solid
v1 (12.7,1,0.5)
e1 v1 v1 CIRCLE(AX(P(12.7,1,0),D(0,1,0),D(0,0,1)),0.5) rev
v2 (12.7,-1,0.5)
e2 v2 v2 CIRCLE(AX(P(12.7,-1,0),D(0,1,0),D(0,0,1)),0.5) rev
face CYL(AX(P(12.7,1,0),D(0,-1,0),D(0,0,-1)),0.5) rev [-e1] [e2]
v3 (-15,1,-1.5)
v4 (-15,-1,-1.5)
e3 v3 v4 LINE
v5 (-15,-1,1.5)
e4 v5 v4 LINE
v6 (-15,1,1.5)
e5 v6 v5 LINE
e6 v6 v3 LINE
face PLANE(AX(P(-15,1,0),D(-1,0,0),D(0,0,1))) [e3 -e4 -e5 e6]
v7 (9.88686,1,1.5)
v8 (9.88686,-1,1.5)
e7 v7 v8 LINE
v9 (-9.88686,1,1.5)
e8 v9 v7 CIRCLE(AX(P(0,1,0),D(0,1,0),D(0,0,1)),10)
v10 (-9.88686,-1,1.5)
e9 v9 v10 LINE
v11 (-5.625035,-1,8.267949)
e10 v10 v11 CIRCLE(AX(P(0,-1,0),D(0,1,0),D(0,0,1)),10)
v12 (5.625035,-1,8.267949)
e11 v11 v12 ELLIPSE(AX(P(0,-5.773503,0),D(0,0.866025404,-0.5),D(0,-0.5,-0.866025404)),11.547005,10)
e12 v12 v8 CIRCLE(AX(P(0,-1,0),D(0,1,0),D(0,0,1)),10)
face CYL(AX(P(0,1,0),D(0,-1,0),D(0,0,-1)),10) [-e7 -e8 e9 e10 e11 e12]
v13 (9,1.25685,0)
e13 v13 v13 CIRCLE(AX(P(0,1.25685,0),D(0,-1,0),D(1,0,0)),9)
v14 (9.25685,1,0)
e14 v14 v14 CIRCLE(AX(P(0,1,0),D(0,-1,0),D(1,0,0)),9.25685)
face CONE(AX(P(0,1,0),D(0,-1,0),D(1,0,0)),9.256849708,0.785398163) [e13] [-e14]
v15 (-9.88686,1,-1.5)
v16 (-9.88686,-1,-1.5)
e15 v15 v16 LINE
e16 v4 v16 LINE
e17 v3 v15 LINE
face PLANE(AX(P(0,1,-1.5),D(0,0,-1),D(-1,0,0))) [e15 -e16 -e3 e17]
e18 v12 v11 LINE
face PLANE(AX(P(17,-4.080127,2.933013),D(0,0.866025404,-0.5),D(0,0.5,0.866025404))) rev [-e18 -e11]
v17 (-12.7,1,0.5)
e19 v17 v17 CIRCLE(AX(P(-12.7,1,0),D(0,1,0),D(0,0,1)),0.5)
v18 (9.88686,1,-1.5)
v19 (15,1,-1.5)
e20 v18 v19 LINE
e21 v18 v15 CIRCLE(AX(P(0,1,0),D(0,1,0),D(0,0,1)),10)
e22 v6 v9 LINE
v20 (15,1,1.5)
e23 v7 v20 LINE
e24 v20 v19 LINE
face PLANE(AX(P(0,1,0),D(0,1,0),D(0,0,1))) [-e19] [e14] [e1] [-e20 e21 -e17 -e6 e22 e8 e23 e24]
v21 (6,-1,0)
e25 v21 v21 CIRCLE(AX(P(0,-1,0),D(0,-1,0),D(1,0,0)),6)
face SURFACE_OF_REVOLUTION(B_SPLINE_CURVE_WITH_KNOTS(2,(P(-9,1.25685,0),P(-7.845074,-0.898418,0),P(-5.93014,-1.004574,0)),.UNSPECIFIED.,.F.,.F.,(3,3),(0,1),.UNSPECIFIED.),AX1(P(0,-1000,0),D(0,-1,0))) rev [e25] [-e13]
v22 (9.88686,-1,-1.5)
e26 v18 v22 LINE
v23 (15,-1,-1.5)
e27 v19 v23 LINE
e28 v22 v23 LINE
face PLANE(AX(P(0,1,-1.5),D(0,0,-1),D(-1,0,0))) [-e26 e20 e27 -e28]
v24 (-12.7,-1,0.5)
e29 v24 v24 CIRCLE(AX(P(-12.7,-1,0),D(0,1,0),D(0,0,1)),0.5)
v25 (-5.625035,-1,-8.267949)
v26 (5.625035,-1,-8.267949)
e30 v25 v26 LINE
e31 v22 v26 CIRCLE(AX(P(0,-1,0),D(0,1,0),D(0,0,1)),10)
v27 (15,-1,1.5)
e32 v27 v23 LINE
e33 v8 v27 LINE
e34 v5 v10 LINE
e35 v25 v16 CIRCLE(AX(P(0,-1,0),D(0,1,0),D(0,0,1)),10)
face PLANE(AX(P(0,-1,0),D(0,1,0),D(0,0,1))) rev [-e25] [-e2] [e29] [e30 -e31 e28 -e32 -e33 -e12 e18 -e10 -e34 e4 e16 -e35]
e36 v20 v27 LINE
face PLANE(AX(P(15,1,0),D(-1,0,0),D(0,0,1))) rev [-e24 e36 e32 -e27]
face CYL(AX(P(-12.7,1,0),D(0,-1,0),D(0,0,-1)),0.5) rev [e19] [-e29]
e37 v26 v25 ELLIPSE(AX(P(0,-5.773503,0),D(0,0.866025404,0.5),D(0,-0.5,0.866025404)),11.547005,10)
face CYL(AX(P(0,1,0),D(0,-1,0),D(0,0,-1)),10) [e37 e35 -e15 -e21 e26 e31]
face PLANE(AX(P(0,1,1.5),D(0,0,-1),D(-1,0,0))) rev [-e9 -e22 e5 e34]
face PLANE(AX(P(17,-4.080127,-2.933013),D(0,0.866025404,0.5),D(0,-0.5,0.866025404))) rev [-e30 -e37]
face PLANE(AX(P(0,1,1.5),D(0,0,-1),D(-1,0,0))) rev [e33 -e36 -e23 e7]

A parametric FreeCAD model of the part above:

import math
import FreeCAD as App
import Part
import Sketcher

V = App.Vector
Q = App.Units.Quantity


def add_polygon(sketch, points):
    """Adds a closed chain of lines whose ends are joined by coincident constraints."""
    first, n = sketch.GeometryCount, len(points)
    for a, b in zip(points, points[1:] + points[:1]):
        sketch.addGeometry(Part.LineSegment(App.Vector(*a, 0), App.Vector(*b, 0)), False)
    for i in range(n):
        sketch.addConstraint(Sketcher.Constraint("Coincident", first + i, 2, first + (i + 1) % n, 1))

doc = App.newDocument("Part")
body = doc.addObject("PartDesign::Body", "Body")

sketch1 = body.newObject("Sketcher::SketchObject", "Sketch")
sketch1.AttachmentSupport = (doc.getObject("XZ_Plane"), [""])
sketch1.MapMode = "FlatFace"
sketch1.addGeometry([
    Part.LineSegment(V(-15, 1.5, 0), V(-9.9, 1.5, 0)),
    Part.ArcOfCircle(Part.Circle(V(0, 0, 0), V(0, 0, 1), 10), math.radians(90), math.radians(171)),
    Part.ArcOfCircle(Part.Circle(V(0, 0, 0), V(0, 0, 1), 10), math.radians(9), math.radians(90)),
    Part.LineSegment(V(9.9, 1.5, 0), V(15, 1.5, 0)),
    Part.LineSegment(V(15, 1.5, 0), V(15, -1.5, 0)),
    Part.LineSegment(V(15, -1.5, 0), V(9.9, -1.5, 0)),
    Part.ArcOfCircle(Part.Circle(V(0, 0, 0), V(0, 0, 1), 10), math.radians(-90), math.radians(-9)),
    Part.ArcOfCircle(Part.Circle(V(0, 0, 0), V(0, 0, 1), 10), math.radians(-171), math.radians(-90)),
    Part.LineSegment(V(-9.9, -1.5, 0), V(-15, -1.5, 0)),
    Part.LineSegment(V(-15, -1.5, 0), V(-15, 1.5, 0)),
    Part.Circle(V(-12.7, 0, 0), V(0, 0, 1), 0.5),
    Part.ArcOfCircle(Part.Circle(V(0, 0, 0), V(0, 0, 1), 9), math.radians(170.41), math.radians(189.59)),
    Part.ArcOfCircle(Part.Circle(V(0, 0, 0), V(0, 0, 1), 9), math.radians(-170), math.radians(-90)),
    Part.ArcOfCircle(Part.Circle(V(0, 0, 0), V(0, 0, 1), 9), math.radians(-90), math.radians(-10)),
    Part.ArcOfCircle(Part.Circle(V(0, 0, 0), V(0, 0, 1), 9), math.radians(-9.59), math.radians(0)),
    Part.ArcOfCircle(Part.Circle(V(0, 0, 0), V(0, 0, 1), 9), math.radians(0), math.radians(9.59)),
    Part.ArcOfCircle(Part.Circle(V(0, 0, 0), V(0, 0, 1), 9), math.radians(10), math.radians(90)),
    Part.ArcOfCircle(Part.Circle(V(0, 0, 0), V(0, 0, 1), 9), math.radians(90), math.radians(170)),
    Part.Circle(V(12.7, 0, 0), V(0, 0, 1), 0.5),
], False)
sketch1.addConstraint([
    Sketcher.Constraint("Coincident", 0, 2, 1, 2),
    Sketcher.Constraint("Tangent", 1, 1, 2, 2),
    Sketcher.Constraint("Coincident", 2, 1, 3, 1),
    Sketcher.Constraint("Coincident", 3, 2, 4, 1),
    Sketcher.Constraint("Coincident", 4, 2, 5, 1),
    Sketcher.Constraint("Coincident", 5, 2, 6, 2),
    Sketcher.Constraint("Tangent", 6, 1, 7, 2),
    Sketcher.Constraint("Coincident", 7, 1, 8, 1),
    Sketcher.Constraint("Coincident", 8, 2, 9, 1),
    Sketcher.Constraint("Coincident", 9, 2, 0, 1),
    Sketcher.Constraint("Tangent", 11, 2, 12, 1),
    Sketcher.Constraint("Tangent", 12, 2, 13, 1),
    Sketcher.Constraint("Tangent", 13, 2, 14, 1),
    Sketcher.Constraint("Tangent", 14, 2, 15, 1),
    Sketcher.Constraint("Tangent", 15, 2, 16, 1),
    Sketcher.Constraint("Tangent", 16, 2, 17, 1),
    Sketcher.Constraint("Tangent", 17, 2, 11, 1),
    Sketcher.Constraint("Horizontal", 0),
    Sketcher.Constraint("Horizontal", 3),
    Sketcher.Constraint("Vertical", 4),
    Sketcher.Constraint("Horizontal", 5),
    Sketcher.Constraint("Horizontal", 8),
    Sketcher.Constraint("Vertical", 9),
    Sketcher.Constraint("Coincident", 1, 3, -1, 1),
    Sketcher.Constraint("Coincident", 6, 3, -1, 1),
    Sketcher.Constraint("Coincident", 11, 3, -1, 1),
    Sketcher.Constraint("Coincident", 13, 3, -1, 1),
    Sketcher.Constraint("Coincident", 15, 3, -1, 1),
    Sketcher.Constraint("Equal", 1, 2),
    Sketcher.Constraint("Equal", 2, 6),
    Sketcher.Constraint("Equal", 6, 7),
    Sketcher.Constraint("Equal", 10, 18),
    Sketcher.Constraint("Symmetric", 10, 3, 18, 3, -1, 1),
    Sketcher.Constraint("Symmetric", 3, 2, 8, 2, -1, 1),
    Sketcher.Constraint("PointOnObject", 10, 3, -1),
    Sketcher.Constraint("PointOnObject", 1, 1, -2),
    Sketcher.Constraint("PointOnObject", 6, 1, -2),
    Sketcher.Constraint("PointOnObject", 12, 2, -2),
    Sketcher.Constraint("PointOnObject", 14, 2, -1),
    Sketcher.Constraint("PointOnObject", 16, 2, -2),
    Sketcher.Constraint("Horizontal", 0, 2, 2, 1),
    Sketcher.Constraint("Horizontal", 5, 2, 7, 1),
    Sketcher.Constraint("Horizontal", 8, 2, 11, 2),
    Sketcher.Constraint("Horizontal", 11, 2, 13, 2),
    Sketcher.Constraint("Horizontal", 9, 2, 15, 2),
    Sketcher.Constraint("Horizontal", 15, 2, 17, 2),
    Sketcher.Constraint("Diameter", 10, Q("1 mm")),
    Sketcher.Constraint("Radius", 1, Q("10 mm")),
    Sketcher.Constraint("Radius", 11, Q("9 mm")),
    Sketcher.Constraint("DistanceY", 4, 2, 4, 1, Q("3 mm")),
    Sketcher.Constraint("DistanceX", -1, 1, 3, 2, Q("15 mm")),
    Sketcher.Constraint("DistanceX", 10, 3, -1, 1, Q("12.7 mm")),
])
pad1 = body.newObject("PartDesign::Pad", "Pad")
pad1.Profile = sketch1
pad1.Length = 2
pad1.Midplane = True

sketch2 = body.newObject("Sketcher::SketchObject", "Sketch001")
sketch2.AttachmentSupport = (doc.getObject("XY_Plane"), [""])
sketch2.MapMode = "FlatFace"
sketch2.addGeometry([
    Part.LineSegment(V(-9, 1.25685, 0), V(-9.25685, 1, 0)),
    Part.LineSegment(V(-9.25685, 1, 0), V(-9.25685, -1, 0)),
    Part.LineSegment(V(-9.25685, -1, 0), V(-6, -1, 0)),
    Part.BSplineCurve([V(-9, 1.25685, 0), V(-7.866218, -0.858961, 0), V(-6, -1, 0)], [3, 3], [0, 0.981692631], False, 2, [1, 1, 1], False),
], False)
sketch2.addConstraint([
    Sketcher.Constraint("Block", 3),
    Sketcher.Constraint("Coincident", 0, 2, 1, 1),
    Sketcher.Constraint("Coincident", 1, 2, 2, 1),
    Sketcher.Constraint("Coincident", 2, 2, 3, 2),
    Sketcher.Constraint("Coincident", 3, 1, 0, 1),
    Sketcher.Constraint("Vertical", 1),
    Sketcher.Constraint("Horizontal", 2),
    Sketcher.Constraint("DistanceY", 1, 2, 1, 1, Q("2 mm")),
    Sketcher.Constraint("DistanceX", 2, 1, 2, 2, Q("3.25685 mm")),
])
revolution = body.newObject("PartDesign::Revolution", "Revolution")
revolution.Profile = sketch2
revolution.ReferenceAxis = (sketch2, ["V_Axis"])
revolution.Angle = 360

sketch3 = body.newObject("Sketcher::SketchObject", "Sketch002")
sketch3.AttachmentSupport = (doc.getObject("YZ_Plane"), [""])
sketch3.MapMode = "FlatFace"
sketch3.AttachmentOffset = App.Placement(V(0, 0, -15), App.Rotation())
add_polygon(sketch3, [(-1, -10), (0, -10), (-1, -8.3)])
add_polygon(sketch3, [(0, 10), (-1, 10), (-1, 8.3)])
sketch3.addConstraint([
    Sketcher.Constraint("Horizontal", 0),
    Sketcher.Constraint("Vertical", 2),
    Sketcher.Constraint("Horizontal", 3),
    Sketcher.Constraint("Vertical", 4),
    Sketcher.Constraint("Symmetric", 0, 2, 5, 2, -1, 1),
    Sketcher.Constraint("Symmetric", 1, 2, 4, 2, -1),
    Sketcher.Constraint("PointOnObject", 0, 2, -2),
    Sketcher.Constraint("DistanceX", 0, 1, 0, 2, Q("1 mm")),
    Sketcher.Constraint("Angle", 1, Q("120 deg")),
    Sketcher.Constraint("DistanceY", 0, 2, -1, 1, Q("10 mm")),
])
pocket1 = body.newObject("PartDesign::Pocket", "Pocket")
pocket1.Profile = sketch3
pocket1.Length = 30
pocket1.Reversed = True

doc.recompute()
